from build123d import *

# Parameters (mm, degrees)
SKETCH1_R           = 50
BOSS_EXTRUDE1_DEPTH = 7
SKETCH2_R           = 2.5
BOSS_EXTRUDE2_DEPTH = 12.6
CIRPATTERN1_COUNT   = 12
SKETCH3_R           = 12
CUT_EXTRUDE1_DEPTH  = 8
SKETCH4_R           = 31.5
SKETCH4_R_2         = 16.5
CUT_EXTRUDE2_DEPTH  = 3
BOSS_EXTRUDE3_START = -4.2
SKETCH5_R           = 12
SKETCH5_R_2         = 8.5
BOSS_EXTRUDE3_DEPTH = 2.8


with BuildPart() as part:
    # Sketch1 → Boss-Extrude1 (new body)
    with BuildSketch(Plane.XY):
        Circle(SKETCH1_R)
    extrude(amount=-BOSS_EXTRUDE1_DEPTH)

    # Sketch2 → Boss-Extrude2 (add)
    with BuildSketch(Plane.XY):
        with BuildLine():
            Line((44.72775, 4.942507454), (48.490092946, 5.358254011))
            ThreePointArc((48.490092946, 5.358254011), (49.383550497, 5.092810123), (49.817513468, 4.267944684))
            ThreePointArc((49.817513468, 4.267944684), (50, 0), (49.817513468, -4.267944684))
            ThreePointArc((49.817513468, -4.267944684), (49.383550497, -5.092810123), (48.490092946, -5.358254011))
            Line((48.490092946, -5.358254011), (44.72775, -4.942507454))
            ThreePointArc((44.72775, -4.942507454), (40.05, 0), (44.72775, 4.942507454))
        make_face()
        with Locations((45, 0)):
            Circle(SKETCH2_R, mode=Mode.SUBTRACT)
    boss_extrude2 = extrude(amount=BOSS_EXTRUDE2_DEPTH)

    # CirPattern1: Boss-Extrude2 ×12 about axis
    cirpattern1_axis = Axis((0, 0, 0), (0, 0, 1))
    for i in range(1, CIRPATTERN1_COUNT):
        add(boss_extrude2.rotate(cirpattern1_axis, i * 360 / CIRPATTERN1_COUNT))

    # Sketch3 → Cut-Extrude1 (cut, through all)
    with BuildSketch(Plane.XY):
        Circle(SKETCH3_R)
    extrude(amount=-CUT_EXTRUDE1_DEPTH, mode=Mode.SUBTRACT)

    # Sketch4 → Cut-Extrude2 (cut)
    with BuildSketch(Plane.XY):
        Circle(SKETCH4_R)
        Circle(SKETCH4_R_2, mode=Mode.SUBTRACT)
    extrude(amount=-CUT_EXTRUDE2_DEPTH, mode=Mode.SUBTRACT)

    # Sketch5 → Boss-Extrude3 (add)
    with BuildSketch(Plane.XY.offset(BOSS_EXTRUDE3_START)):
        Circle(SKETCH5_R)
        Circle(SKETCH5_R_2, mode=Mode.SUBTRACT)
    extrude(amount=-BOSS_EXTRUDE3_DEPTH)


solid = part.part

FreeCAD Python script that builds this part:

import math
import FreeCAD as App
import Part
import Sketcher

V = App.Vector

doc = App.newDocument("Part")
body = doc.addObject("PartDesign::Body", "Body")

# Sketch on XY plane
sketch1 = body.newObject("Sketcher::SketchObject", "Sketch")
sketch1.AttachmentSupport = (doc.getObject("XY_Plane"), [""])
sketch1.MapMode = "FlatFace"
sketch1.addGeometry(Part.Circle(V(0, 0, 0), V(0, 0, 1), 50), False)
sketch1.addConstraint([
    Sketcher.Constraint("Coincident", 0, 3, -1, 1),
    Sketcher.Constraint("Diameter", 0, 100.0),
])
pad1 = body.newObject("PartDesign::Pad", "Pad")
pad1.Profile = sketch1
pad1.Length = 7
pad1.Reversed = True

# Sketch on XY plane
sketch2 = body.newObject("Sketcher::SketchObject", "Sketch001")
sketch2.AttachmentSupport = (doc.getObject("XY_Plane"), [""])
sketch2.MapMode = "FlatFace"
sketch2.addGeometry([
    Part.LineSegment(V(48.5, 5.4, 0), V(44.7, 4.9, 0)),  # 0
    Part.ArcOfCircle(Part.Circle(V(45, 0, 0), V(0, 0, 1), 5), math.radians(93), math.radians(267)),  # 1
    Part.LineSegment(V(44.7, -4.9, 0), V(48.5, -5.4, 0)),  # 2
    Part.ArcOfCircle(Part.Circle(V(48.6, -4.2, 0), V(0, 0, 1), 1.2), math.radians(-96), math.radians(-5)),  # 3
    Part.ArcOfCircle(Part.Circle(V(0, 0, 0), V(0, 0, 1), 50), math.radians(-4.9), math.radians(4.9)),  # 4
    Part.ArcOfCircle(Part.Circle(V(48.6, 4.2, 0), V(0, 0, 1), 1.2), math.radians(5), math.radians(96)),  # 5
    Part.Circle(V(45, 0, 0), V(0, 0, 1), 2.5),  # 6
], False)
sketch2.addConstraint([
    Sketcher.Constraint("Coincident", 0, 2, 1, 1),
    Sketcher.Constraint("Coincident", 1, 2, 2, 1),
    Sketcher.Constraint("Tangent", 2, 2, 3, 1),
    Sketcher.Constraint("Tangent", 3, 2, 4, 1),
    Sketcher.Constraint("Tangent", 4, 2, 5, 1),
    Sketcher.Constraint("Tangent", 5, 2, 0, 1),
    Sketcher.Constraint("Coincident", 4, 3, -1, 1),
    Sketcher.Constraint("Coincident", 6, 3, 1, 3),
    Sketcher.Constraint("Equal", 3, 5),
    Sketcher.Constraint("Symmetric", 0, 2, 1, 2, -1),
    Sketcher.Constraint("Vertical", 3, 3, 5, 3),
    Sketcher.Constraint("Diameter", 6, 5.0),
    Sketcher.Constraint("Radius", 4, 50.0),
    Sketcher.Constraint("Radius", 3, 1.2),
    Sketcher.Constraint("Radius", 1, 4.95),
    Sketcher.Constraint("DistanceX", -1, 1, 1, 3, 45.0),
    Sketcher.Constraint("DistanceX", 2, 2, 3, 3, 0.1318),
    Sketcher.Constraint("DistanceX", -1, 1, 0, 2, 44.72775),
])
pad2 = body.newObject("PartDesign::Pad", "Pad001")
pad2.Profile = sketch2
pad2.Length = 12.6
doc.recompute()

polarpattern = body.newObject("PartDesign::PolarPattern", "PolarPattern")
polarpattern.Originals = [pad2]
polarpattern.Axis = (doc.getObject("Z_Axis"), [""])
polarpattern.Angle = 360
polarpattern.Occurrences = 12
body.Tip = polarpattern

# Sketch on XY plane
sketch3 = body.newObject("Sketcher::SketchObject", "Sketch002")
sketch3.AttachmentSupport = (doc.getObject("XY_Plane"), [""])
sketch3.MapMode = "FlatFace"
sketch3.addGeometry(Part.Circle(V(0, 0, 0), V(0, 0, 1), 12), False)
sketch3.addConstraint([
    Sketcher.Constraint("Coincident", 0, 3, -1, 1),
    Sketcher.Constraint("Diameter", 0, 24.0),
])
pocket1 = body.newObject("PartDesign::Pocket", "Pocket")
pocket1.Profile = sketch3
pocket1.Type = "ThroughAll"

# Sketch on XY plane
sketch4 = body.newObject("Sketcher::SketchObject", "Sketch003")
sketch4.AttachmentSupport = (doc.getObject("XY_Plane"), [""])
sketch4.MapMode = "FlatFace"
sketch4.addGeometry([
    Part.Circle(V(0, 0, 0), V(0, 0, 1), 32),
    Part.Circle(V(0, 0, 0), V(0, 0, 1), 16),
], False)
sketch4.addConstraint([
    Sketcher.Constraint("Coincident", 0, 3, -1, 1),
    Sketcher.Constraint("Coincident", 1, 3, -1, 1),
    Sketcher.Constraint("Diameter", 0, 63.0),
    Sketcher.Constraint("Diameter", 1, 33.0),
])
pocket2 = body.newObject("PartDesign::Pocket", "Pocket001")
pocket2.Profile = sketch4
pocket2.Length = 3

# Sketch on XY plane
sketch5 = body.newObject("Sketcher::SketchObject", "Sketch004")
sketch5.AttachmentSupport = (doc.getObject("XY_Plane"), [""])
sketch5.MapMode = "FlatFace"
sketch5.AttachmentOffset = App.Placement(V(0, 0, -4.2), App.Rotation())
sketch5.addGeometry([
    Part.Circle(V(0, 0, 0), V(0, 0, 1), 12),
    Part.Circle(V(0, 0, 0), V(0, 0, 1), 8),
], False)
sketch5.addConstraint([
    Sketcher.Constraint("Coincident", 0, 3, -1, 1),
    Sketcher.Constraint("Coincident", 1, 3, -1, 1),
    Sketcher.Constraint("Diameter", 0, 24.0),
    Sketcher.Constraint("Diameter", 1, 17.0),
])
pad3 = body.newObject("PartDesign::Pad", "Pad002")
pad3.Profile = sketch5
pad3.Length = 2.8
pad3.Reversed = True

doc.recompute()
